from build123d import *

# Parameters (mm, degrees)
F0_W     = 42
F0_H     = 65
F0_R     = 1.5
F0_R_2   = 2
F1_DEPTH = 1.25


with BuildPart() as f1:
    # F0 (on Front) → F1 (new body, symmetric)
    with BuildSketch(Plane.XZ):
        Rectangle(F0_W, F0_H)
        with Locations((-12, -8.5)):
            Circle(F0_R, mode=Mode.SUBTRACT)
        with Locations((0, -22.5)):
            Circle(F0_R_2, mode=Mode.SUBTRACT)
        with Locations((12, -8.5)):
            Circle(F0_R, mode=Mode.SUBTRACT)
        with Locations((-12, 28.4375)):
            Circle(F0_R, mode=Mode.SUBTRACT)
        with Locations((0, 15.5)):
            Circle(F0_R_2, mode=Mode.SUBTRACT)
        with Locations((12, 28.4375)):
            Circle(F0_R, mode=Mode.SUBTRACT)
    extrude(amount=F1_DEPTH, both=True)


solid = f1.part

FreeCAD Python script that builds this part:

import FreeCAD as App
import Part
import Sketcher

V = App.Vector
Q = App.Units.Quantity

doc = App.newDocument("Part")
body = doc.addObject("PartDesign::Body", "Body")

# Sketch on XZ plane
sketch1 = body.newObject("Sketcher::SketchObject", "Sketch")
sketch1.AttachmentSupport = (doc.getObject("XZ_Plane"), [""])
sketch1.MapMode = "FlatFace"
sketch1.addGeometry([
    Part.LineSegment(V(-21, 32.5, 0), V(-21, -32.5, 0)),  # 0
    Part.LineSegment(V(-21, -32.5, 0), V(21, -32.5, 0)),  # 1
    Part.LineSegment(V(21, -32.5, 0), V(21, 32.5, 0)),  # 2
    Part.LineSegment(V(21, 32.5, 0), V(-21, 32.5, 0)),  # 3
    Part.Circle(V(-12, -8.5, 0), V(0, 0, 1), 1.5),  # 4
    Part.Circle(V(0, -22.5, 0), V(0, 0, 1), 2),  # 5
    Part.Circle(V(12, -8.5, 0), V(0, 0, 1), 1.5),  # 6
    Part.Circle(V(-12, 28.4, 0), V(0, 0, 1), 1.5),  # 7
    Part.Circle(V(0, 15.5, 0), V(0, 0, 1), 2),  # 8
    Part.Circle(V(12, 28.4, 0), V(0, 0, 1), 1.5),  # 9
], False)
sketch1.addConstraint([
    Sketcher.Constraint("Coincident", 0, 2, 1, 1),
    Sketcher.Constraint("Coincident", 1, 2, 2, 1),
    Sketcher.Constraint("Coincident", 2, 2, 3, 1),
    Sketcher.Constraint("Coincident", 3, 2, 0, 1),
    Sketcher.Constraint("Vertical", 0),
    Sketcher.Constraint("Horizontal", 1),
    Sketcher.Constraint("Vertical", 2),
    Sketcher.Constraint("Horizontal", 3),
    Sketcher.Constraint("Equal", 4, 6),
    Sketcher.Constraint("Equal", 6, 7),
    Sketcher.Constraint("Equal", 5, 8),
    Sketcher.Constraint("Equal", 7, 9),
    Sketcher.Constraint("Symmetric", 0, 2, 2, 2, -1, 1),
    Sketcher.Constraint("Symmetric", 4, 3, 6, 3, -2),
    Sketcher.Constraint("Symmetric", 7, 3, 9, 3, -2),
    Sketcher.Constraint("PointOnObject", 5, 3, -2),
    Sketcher.Constraint("PointOnObject", 8, 3, -2),
    Sketcher.Constraint("Vertical", 4, 3, 7, 3),
    Sketcher.Constraint("Diameter", 4, Q("3 mm")),
    Sketcher.Constraint("Diameter", 5, Q("4 mm")),
    Sketcher.Constraint("DistanceX", 1, 1, 1, 2, Q("42 mm")),
    Sketcher.Constraint("DistanceY", 0, 2, 0, 1, Q("65 mm")),
    Sketcher.Constraint("DistanceX", 4, 3, -1, 1, Q("12 mm")),
    Sketcher.Constraint("DistanceY", 5, 3, 4, 3, Q("14 mm")),
    Sketcher.Constraint("DistanceY", 4, 3, 8, 3, Q("24 mm")),
    Sketcher.Constraint("DistanceY", 0, 2, 5, 3, Q("10 mm")),
    Sketcher.Constraint("DistanceY", -1, 1, 7, 3, Q("28.4375 mm")),
])
pad1 = body.newObject("PartDesign::Pad", "Pad")
pad1.Profile = sketch1
pad1.Length = 2.5
pad1.Midplane = True

doc.recompute()
